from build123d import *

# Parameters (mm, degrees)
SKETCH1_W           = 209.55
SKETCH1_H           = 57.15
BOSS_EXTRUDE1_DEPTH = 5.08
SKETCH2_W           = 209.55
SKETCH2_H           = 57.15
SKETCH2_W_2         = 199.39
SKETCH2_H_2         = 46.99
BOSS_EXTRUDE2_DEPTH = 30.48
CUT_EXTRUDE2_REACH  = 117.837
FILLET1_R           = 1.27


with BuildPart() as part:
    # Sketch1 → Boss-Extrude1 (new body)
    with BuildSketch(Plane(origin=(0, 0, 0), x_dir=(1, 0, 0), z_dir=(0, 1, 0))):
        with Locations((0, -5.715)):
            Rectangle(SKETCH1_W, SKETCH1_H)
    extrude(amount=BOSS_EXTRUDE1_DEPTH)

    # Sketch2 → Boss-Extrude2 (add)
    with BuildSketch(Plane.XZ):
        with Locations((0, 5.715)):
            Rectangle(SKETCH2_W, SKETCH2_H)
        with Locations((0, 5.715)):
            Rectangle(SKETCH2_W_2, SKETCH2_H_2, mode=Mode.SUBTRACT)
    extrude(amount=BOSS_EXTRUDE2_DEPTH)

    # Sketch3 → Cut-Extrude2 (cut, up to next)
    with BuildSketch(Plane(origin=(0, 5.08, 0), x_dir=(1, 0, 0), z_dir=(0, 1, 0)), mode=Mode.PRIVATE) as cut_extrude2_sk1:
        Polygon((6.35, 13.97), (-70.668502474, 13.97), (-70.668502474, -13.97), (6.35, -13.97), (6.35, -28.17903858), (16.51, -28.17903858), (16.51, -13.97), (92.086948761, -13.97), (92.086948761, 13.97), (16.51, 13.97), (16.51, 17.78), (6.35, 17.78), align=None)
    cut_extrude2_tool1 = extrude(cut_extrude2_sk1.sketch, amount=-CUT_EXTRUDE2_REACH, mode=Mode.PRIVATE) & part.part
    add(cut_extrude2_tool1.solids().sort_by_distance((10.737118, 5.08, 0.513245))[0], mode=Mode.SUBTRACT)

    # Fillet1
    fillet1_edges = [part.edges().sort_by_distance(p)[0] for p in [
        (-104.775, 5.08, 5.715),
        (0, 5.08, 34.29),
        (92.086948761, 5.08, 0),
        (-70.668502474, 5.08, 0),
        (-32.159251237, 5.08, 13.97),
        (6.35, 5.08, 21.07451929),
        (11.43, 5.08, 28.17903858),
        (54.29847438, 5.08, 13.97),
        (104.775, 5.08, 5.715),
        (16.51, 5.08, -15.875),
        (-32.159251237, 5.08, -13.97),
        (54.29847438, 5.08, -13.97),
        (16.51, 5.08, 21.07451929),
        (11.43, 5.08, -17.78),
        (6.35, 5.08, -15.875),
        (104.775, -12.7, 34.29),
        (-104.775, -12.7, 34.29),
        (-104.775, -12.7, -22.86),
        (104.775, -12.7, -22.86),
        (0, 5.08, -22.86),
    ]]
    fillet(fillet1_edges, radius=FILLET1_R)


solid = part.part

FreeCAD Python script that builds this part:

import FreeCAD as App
import Part
import Sketcher
from FreeCAD import Vector
Q = App.Units.Quantity


def edges_at(feature, points):
    """Names of the edges that pass closest to the given points."""
    edges = feature.Shape.Edges
    near = lambda p: min(range(len(edges)), key=lambda i: edges[i].distToShape(Part.Vertex(*p))[0])
    return sorted({f"Edge{near(p) + 1}" for p in points})

doc = App.newDocument("Part")
body = doc.addObject("PartDesign::Body", "Body")

# Sketch on XZ plane
sketch1 = body.newObject("Sketcher::SketchObject", "Sketch")
sketch1.AttachmentSupport = (doc.getObject("XZ_Plane"), [""])
sketch1.MapMode = "FlatFace"
sketch1.addGeometry(Part.LineSegment(Vector(-105, -23, 0), Vector(-105, 34, 0)), False)
sketch1.addGeometry(Part.LineSegment(Vector(-105, 34, 0), Vector(105, 34, 0)), False)
sketch1.addGeometry(Part.LineSegment(Vector(105, 34, 0), Vector(105, -23, 0)), False)
sketch1.addGeometry(Part.LineSegment(Vector(105, -23, 0), Vector(-105, -23, 0)), False)
sketch1.addConstraint(Sketcher.Constraint("Coincident", 0, 2, 1, 1))
sketch1.addConstraint(Sketcher.Constraint("Coincident", 1, 2, 2, 1))
sketch1.addConstraint(Sketcher.Constraint("Coincident", 2, 2, 3, 1))
sketch1.addConstraint(Sketcher.Constraint("Coincident", 3, 2, 0, 1))
sketch1.addConstraint(Sketcher.Constraint("Vertical", 0))
sketch1.addConstraint(Sketcher.Constraint("Horizontal", 1))
sketch1.addConstraint(Sketcher.Constraint("Vertical", 2))
sketch1.addConstraint(Sketcher.Constraint("Horizontal", 3))
sketch1.addConstraint(Sketcher.Constraint("DistanceX", 1, 1, 1, 2, Q("8.25 in")))
sketch1.addConstraint(Sketcher.Constraint("DistanceY", 0, 1, 0, 2, Q("2.25 in")))
sketch1.addConstraint(Sketcher.Constraint("DistanceY", 2, 2, -1, 1, Q("0.9 in")))
sketch1.addConstraint(Sketcher.Constraint("DistanceX", 0, 2, -1, 1, Q("4.125 in")))
pad1 = body.newObject("PartDesign::Pad", "Pad")
pad1.Profile = sketch1
pad1.Length = Q("0.2 in")
pad1.Reversed = True

# Sketch on XZ plane
sketch2 = body.newObject("Sketcher::SketchObject", "Sketch001")
sketch2.AttachmentSupport = (doc.getObject("XZ_Plane"), [""])
sketch2.MapMode = "FlatFace"
sketch2.addGeometry(Part.LineSegment(Vector(-105, 34, 0), Vector(-105, -23, 0)), False)
sketch2.addGeometry(Part.LineSegment(Vector(-105, -23, 0), Vector(105, -23, 0)), False)
sketch2.addGeometry(Part.LineSegment(Vector(105, -23, 0), Vector(105, 34, 0)), False)
sketch2.addGeometry(Part.LineSegment(Vector(105, 34, 0), Vector(-105, 34, 0)), False)
sketch2.addGeometry(Part.LineSegment(Vector(100, -18, 0), Vector(-100, -18, 0)), False)
sketch2.addGeometry(Part.LineSegment(Vector(-100, -18, 0), Vector(-100, 29, 0)), False)
sketch2.addGeometry(Part.LineSegment(Vector(-100, 29, 0), Vector(100, 29, 0)), False)
sketch2.addGeometry(Part.LineSegment(Vector(100, 29, 0), Vector(100, -18, 0)), False)
sketch2.addConstraint(Sketcher.Constraint("Coincident", 0, 2, 1, 1))
sketch2.addConstraint(Sketcher.Constraint("Coincident", 1, 2, 2, 1))
sketch2.addConstraint(Sketcher.Constraint("Coincident", 2, 2, 3, 1))
sketch2.addConstraint(Sketcher.Constraint("Coincident", 3, 2, 0, 1))
sketch2.addConstraint(Sketcher.Constraint("Coincident", 4, 2, 5, 1))
sketch2.addConstraint(Sketcher.Constraint("Coincident", 5, 2, 6, 1))
sketch2.addConstraint(Sketcher.Constraint("Coincident", 6, 2, 7, 1))
sketch2.addConstraint(Sketcher.Constraint("Coincident", 7, 2, 4, 1))
sketch2.addConstraint(Sketcher.Constraint("Vertical", 0))
sketch2.addConstraint(Sketcher.Constraint("Horizontal", 1))
sketch2.addConstraint(Sketcher.Constraint("Vertical", 2))
sketch2.addConstraint(Sketcher.Constraint("Horizontal", 3))
sketch2.addConstraint(Sketcher.Constraint("Horizontal", 4))
sketch2.addConstraint(Sketcher.Constraint("Vertical", 5))
sketch2.addConstraint(Sketcher.Constraint("Horizontal", 6))
sketch2.addConstraint(Sketcher.Constraint("Vertical", 7))
sketch2.addConstraint(Sketcher.Constraint("DistanceX", 1, 1, 1, 2, Q("8.25 in")))
sketch2.addConstraint(Sketcher.Constraint("DistanceX", 4, 2, 4, 1, Q("7.85 in")))
sketch2.addConstraint(Sketcher.Constraint("DistanceY", 0, 2, 0, 1, Q("2.25 in")))
sketch2.addConstraint(Sketcher.Constraint("DistanceY", 5, 1, 5, 2, Q("1.85 in")))
sketch2.addConstraint(Sketcher.Constraint("DistanceY", 0, 2, -1, 1, Q("0.9 in")))
sketch2.addConstraint(Sketcher.Constraint("DistanceY", 4, 2, -1, 1, Q("0.7 in")))
sketch2.addConstraint(Sketcher.Constraint("DistanceX", 0, 2, 4, 2, Q("0.2 in")))
sketch2.addConstraint(Sketcher.Constraint("DistanceX", 0, 2, -1, 1, Q("4.125 in")))
pad2 = body.newObject("PartDesign::Pad", "Pad001")
pad2.Profile = sketch2
pad2.Length = Q("1.2 in")

# Sketch on XZ plane
sketch3 = body.newObject("Sketcher::SketchObject", "Sketch002")
sketch3.AttachmentSupport = (doc.getObject("XZ_Plane"), [""])
sketch3.MapMode = "FlatFace"
sketch3.AttachmentOffset = App.Placement(Vector(0, 0, -0.2 * 25.4), App.Rotation())
sketch3.addGeometry(Part.LineSegment(Vector(6.3, -14, 0), Vector(-70.7, -14, 0)), False)
sketch3.addGeometry(Part.LineSegment(Vector(-70.7, -14, 0), Vector(-70.7, 14, 0)), False)
sketch3.addGeometry(Part.LineSegment(Vector(-70.7, 14, 0), Vector(6.3, 14, 0)), False)
sketch3.addGeometry(Part.LineSegment(Vector(6.3, 14, 0), Vector(6.3, 28.2, 0)), False)
sketch3.addGeometry(Part.LineSegment(Vector(6.3, 28.2, 0), Vector(16.5, 28.2, 0)), False)
sketch3.addGeometry(Part.LineSegment(Vector(16.5, 28.2, 0), Vector(16.5, 14, 0)), False)
sketch3.addGeometry(Part.LineSegment(Vector(16.5, 14, 0), Vector(92.1, 14, 0)), False)
sketch3.addGeometry(Part.LineSegment(Vector(92.1, 14, 0), Vector(92.1, -14, 0)), False)
sketch3.addGeometry(Part.LineSegment(Vector(92.1, -14, 0), Vector(16.5, -14, 0)), False)
sketch3.addGeometry(Part.LineSegment(Vector(16.5, -14, 0), Vector(16.5, -17.8, 0)), False)
sketch3.addGeometry(Part.LineSegment(Vector(16.5, -17.8, 0), Vector(6.3, -17.8, 0)), False)
sketch3.addGeometry(Part.LineSegment(Vector(6.3, -17.8, 0), Vector(6.3, -14, 0)), False)
sketch3.addConstraint(Sketcher.Constraint("Coincident", 0, 2, 1, 1))
sketch3.addConstraint(Sketcher.Constraint("Coincident", 1, 2, 2, 1))
sketch3.addConstraint(Sketcher.Constraint("Coincident", 2, 2, 3, 1))
sketch3.addConstraint(Sketcher.Constraint("Coincident", 3, 2, 4, 1))
sketch3.addConstraint(Sketcher.Constraint("Coincident", 4, 2, 5, 1))
sketch3.addConstraint(Sketcher.Constraint("Coincident", 5, 2, 6, 1))
sketch3.addConstraint(Sketcher.Constraint("Coincident", 6, 2, 7, 1))
sketch3.addConstraint(Sketcher.Constraint("Coincident", 7, 2, 8, 1))
sketch3.addConstraint(Sketcher.Constraint("Coincident", 8, 2, 9, 1))
sketch3.addConstraint(Sketcher.Constraint("Coincident", 9, 2, 10, 1))
sketch3.addConstraint(Sketcher.Constraint("Coincident", 10, 2, 11, 1))
sketch3.addConstraint(Sketcher.Constraint("Coincident", 11, 2, 0, 1))
sketch3.addConstraint(Sketcher.Constraint("Horizontal", 0))
sketch3.addConstraint(Sketcher.Constraint("Vertical", 1))
sketch3.addConstraint(Sketcher.Constraint("Horizontal", 2))
sketch3.addConstraint(Sketcher.Constraint("Vertical", 3))
sketch3.addConstraint(Sketcher.Constraint("Horizontal", 4))
sketch3.addConstraint(Sketcher.Constraint("Vertical", 5))
sketch3.addConstraint(Sketcher.Constraint("Horizontal", 6))
sketch3.addConstraint(Sketcher.Constraint("Vertical", 7))
sketch3.addConstraint(Sketcher.Constraint("Horizontal", 8))
sketch3.addConstraint(Sketcher.Constraint("Vertical", 9))
sketch3.addConstraint(Sketcher.Constraint("Horizontal", 10))
sketch3.addConstraint(Sketcher.Constraint("Vertical", 11))
sketch3.addConstraint(Sketcher.Constraint("Symmetric", 5, 2, 8, 2, -1))
sketch3.addConstraint(Sketcher.Constraint("Symmetric", 2, 2, 11, 2, -1))
sketch3.addConstraint(Sketcher.Constraint("Horizontal", 2, 2, 5, 2))
sketch3.addConstraint(Sketcher.Constraint("DistanceX", 4, 1, 4, 2, Q("0.4 in")))
sketch3.addConstraint(Sketcher.Constraint("DistanceY", 1, 1, 1, 2, Q("1.1 in")))
sketch3.addConstraint(Sketcher.Constraint("DistanceY", 9, 2, 9, 1, Q("0.15 in")))
sketch3.addConstraint(Sketcher.Constraint("DistanceX", -1, 1, 2, 2, Q("0.25 in")))
sketch3.addConstraint(Sketcher.Constraint("DistanceX", 6, 1, 6, 2, Q("75.576949 mm")))
sketch3.addConstraint(Sketcher.Constraint("DistanceY", 3, 1, 3, 2, Q("14.209039 mm")))
sketch3.addConstraint(Sketcher.Constraint("DistanceX", 0, 2, 0, 1, Q("77.018502 mm")))
pocket1 = body.newObject("PartDesign::Pocket", "Pocket")
pocket1.Profile = sketch3
pocket1.Type = "UpToFirst"
pocket1.Reversed = True
doc.recompute()

fillet = body.newObject("PartDesign::Fillet", "Fillet")
fillet.Base = (pocket1, edges_at(pocket1, [
    (-104.775, 5.08, 5.715),
    (0, 5.08, 34.29),
    (92.087, 5.08, 0),
    (-70.669, 5.08, 0),
    (-32.159, 5.08, 13.97),
    (6.35, 5.08, 21.075),
    (11.43, 5.08, 28.179),
    (54.298, 5.08, 13.97),
    (104.775, 5.08, 5.715),
    (16.51, 5.08, -15.875),
    (-32.159, 5.08, -13.97),
    (54.298, 5.08, -13.97),
    (16.51, 5.08, 21.075),
    (11.43, 5.08, -17.78),
    (6.35, 5.08, -15.875),
    (104.775, -12.7, 34.29),
    (-104.775, -12.7, 34.29),
    (-104.775, -12.7, -22.86),
    (104.775, -12.7, -22.86),
    (0, 5.08, -22.86),
]))
fillet.Radius = Q("0.05 in")

doc.recompute()
